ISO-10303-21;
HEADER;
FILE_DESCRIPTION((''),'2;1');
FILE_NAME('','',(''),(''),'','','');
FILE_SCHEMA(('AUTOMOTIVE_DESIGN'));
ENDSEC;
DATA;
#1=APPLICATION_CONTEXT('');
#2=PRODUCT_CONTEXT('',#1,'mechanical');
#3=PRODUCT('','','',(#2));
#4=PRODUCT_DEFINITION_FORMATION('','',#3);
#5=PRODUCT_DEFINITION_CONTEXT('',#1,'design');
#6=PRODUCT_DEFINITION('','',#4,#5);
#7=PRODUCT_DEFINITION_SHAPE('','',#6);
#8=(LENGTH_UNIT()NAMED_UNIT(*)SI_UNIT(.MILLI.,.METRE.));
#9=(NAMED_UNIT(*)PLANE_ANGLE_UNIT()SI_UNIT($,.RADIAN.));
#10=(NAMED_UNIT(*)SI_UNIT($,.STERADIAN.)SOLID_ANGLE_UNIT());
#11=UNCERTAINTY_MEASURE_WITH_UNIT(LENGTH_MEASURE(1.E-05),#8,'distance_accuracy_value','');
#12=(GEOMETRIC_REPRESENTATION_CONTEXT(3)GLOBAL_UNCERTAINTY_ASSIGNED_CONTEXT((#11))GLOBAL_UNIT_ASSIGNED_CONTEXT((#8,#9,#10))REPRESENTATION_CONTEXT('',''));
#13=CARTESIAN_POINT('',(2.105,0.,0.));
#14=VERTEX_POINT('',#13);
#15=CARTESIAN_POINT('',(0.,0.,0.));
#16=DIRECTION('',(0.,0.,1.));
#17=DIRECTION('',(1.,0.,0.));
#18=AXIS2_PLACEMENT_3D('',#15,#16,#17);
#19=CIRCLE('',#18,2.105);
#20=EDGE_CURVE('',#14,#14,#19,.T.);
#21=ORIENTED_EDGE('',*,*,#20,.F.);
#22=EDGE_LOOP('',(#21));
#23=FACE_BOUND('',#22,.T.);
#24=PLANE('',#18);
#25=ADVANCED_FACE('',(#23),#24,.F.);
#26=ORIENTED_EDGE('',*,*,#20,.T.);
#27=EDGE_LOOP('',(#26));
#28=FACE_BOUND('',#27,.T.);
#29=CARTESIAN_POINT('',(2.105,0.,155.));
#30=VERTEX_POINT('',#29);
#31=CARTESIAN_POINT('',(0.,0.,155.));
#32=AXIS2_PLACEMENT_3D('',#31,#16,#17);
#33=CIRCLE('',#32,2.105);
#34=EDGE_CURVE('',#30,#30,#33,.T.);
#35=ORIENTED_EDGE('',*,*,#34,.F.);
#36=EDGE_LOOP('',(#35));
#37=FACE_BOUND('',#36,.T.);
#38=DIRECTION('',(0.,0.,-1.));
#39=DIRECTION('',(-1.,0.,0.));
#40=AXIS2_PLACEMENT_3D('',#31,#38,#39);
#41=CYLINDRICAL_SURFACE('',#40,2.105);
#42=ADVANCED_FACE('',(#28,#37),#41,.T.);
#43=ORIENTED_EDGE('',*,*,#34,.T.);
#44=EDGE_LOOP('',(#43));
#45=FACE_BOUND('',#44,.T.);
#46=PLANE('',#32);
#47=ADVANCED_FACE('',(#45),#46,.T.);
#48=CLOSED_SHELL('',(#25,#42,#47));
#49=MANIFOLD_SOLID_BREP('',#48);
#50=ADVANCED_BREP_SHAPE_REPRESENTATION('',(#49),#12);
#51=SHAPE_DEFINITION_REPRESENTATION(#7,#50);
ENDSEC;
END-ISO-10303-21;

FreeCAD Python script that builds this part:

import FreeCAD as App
import Part
import Sketcher
Q = App.Units.Quantity

doc = App.newDocument("Part")
body = doc.addObject("PartDesign::Body", "Body")

# Sketch on XY plane
sketch1 = doc.addObject("Sketcher::SketchObject", "Sketch")
body.addObject(sketch1)
sketch1.AttachmentSupport = (doc.XY_Plane, [""])
sketch1.MapMode = "FlatFace"
sketch1.addGeometry(Part.Circle(App.Vector(0, 0, 0), App.Vector(0, 0, 1), 2.1), False)
sketch1.addConstraint([
    Sketcher.Constraint("Coincident", 0, 3, -1, 1),
    Sketcher.Constraint("Diameter", 0, Q("4.21 mm")),
])
pad1 = doc.addObject("PartDesign::Pad", "Pad")
body.addObject(pad1)
pad1.Profile = sketch1
pad1.Length = 155

doc.recompute()
